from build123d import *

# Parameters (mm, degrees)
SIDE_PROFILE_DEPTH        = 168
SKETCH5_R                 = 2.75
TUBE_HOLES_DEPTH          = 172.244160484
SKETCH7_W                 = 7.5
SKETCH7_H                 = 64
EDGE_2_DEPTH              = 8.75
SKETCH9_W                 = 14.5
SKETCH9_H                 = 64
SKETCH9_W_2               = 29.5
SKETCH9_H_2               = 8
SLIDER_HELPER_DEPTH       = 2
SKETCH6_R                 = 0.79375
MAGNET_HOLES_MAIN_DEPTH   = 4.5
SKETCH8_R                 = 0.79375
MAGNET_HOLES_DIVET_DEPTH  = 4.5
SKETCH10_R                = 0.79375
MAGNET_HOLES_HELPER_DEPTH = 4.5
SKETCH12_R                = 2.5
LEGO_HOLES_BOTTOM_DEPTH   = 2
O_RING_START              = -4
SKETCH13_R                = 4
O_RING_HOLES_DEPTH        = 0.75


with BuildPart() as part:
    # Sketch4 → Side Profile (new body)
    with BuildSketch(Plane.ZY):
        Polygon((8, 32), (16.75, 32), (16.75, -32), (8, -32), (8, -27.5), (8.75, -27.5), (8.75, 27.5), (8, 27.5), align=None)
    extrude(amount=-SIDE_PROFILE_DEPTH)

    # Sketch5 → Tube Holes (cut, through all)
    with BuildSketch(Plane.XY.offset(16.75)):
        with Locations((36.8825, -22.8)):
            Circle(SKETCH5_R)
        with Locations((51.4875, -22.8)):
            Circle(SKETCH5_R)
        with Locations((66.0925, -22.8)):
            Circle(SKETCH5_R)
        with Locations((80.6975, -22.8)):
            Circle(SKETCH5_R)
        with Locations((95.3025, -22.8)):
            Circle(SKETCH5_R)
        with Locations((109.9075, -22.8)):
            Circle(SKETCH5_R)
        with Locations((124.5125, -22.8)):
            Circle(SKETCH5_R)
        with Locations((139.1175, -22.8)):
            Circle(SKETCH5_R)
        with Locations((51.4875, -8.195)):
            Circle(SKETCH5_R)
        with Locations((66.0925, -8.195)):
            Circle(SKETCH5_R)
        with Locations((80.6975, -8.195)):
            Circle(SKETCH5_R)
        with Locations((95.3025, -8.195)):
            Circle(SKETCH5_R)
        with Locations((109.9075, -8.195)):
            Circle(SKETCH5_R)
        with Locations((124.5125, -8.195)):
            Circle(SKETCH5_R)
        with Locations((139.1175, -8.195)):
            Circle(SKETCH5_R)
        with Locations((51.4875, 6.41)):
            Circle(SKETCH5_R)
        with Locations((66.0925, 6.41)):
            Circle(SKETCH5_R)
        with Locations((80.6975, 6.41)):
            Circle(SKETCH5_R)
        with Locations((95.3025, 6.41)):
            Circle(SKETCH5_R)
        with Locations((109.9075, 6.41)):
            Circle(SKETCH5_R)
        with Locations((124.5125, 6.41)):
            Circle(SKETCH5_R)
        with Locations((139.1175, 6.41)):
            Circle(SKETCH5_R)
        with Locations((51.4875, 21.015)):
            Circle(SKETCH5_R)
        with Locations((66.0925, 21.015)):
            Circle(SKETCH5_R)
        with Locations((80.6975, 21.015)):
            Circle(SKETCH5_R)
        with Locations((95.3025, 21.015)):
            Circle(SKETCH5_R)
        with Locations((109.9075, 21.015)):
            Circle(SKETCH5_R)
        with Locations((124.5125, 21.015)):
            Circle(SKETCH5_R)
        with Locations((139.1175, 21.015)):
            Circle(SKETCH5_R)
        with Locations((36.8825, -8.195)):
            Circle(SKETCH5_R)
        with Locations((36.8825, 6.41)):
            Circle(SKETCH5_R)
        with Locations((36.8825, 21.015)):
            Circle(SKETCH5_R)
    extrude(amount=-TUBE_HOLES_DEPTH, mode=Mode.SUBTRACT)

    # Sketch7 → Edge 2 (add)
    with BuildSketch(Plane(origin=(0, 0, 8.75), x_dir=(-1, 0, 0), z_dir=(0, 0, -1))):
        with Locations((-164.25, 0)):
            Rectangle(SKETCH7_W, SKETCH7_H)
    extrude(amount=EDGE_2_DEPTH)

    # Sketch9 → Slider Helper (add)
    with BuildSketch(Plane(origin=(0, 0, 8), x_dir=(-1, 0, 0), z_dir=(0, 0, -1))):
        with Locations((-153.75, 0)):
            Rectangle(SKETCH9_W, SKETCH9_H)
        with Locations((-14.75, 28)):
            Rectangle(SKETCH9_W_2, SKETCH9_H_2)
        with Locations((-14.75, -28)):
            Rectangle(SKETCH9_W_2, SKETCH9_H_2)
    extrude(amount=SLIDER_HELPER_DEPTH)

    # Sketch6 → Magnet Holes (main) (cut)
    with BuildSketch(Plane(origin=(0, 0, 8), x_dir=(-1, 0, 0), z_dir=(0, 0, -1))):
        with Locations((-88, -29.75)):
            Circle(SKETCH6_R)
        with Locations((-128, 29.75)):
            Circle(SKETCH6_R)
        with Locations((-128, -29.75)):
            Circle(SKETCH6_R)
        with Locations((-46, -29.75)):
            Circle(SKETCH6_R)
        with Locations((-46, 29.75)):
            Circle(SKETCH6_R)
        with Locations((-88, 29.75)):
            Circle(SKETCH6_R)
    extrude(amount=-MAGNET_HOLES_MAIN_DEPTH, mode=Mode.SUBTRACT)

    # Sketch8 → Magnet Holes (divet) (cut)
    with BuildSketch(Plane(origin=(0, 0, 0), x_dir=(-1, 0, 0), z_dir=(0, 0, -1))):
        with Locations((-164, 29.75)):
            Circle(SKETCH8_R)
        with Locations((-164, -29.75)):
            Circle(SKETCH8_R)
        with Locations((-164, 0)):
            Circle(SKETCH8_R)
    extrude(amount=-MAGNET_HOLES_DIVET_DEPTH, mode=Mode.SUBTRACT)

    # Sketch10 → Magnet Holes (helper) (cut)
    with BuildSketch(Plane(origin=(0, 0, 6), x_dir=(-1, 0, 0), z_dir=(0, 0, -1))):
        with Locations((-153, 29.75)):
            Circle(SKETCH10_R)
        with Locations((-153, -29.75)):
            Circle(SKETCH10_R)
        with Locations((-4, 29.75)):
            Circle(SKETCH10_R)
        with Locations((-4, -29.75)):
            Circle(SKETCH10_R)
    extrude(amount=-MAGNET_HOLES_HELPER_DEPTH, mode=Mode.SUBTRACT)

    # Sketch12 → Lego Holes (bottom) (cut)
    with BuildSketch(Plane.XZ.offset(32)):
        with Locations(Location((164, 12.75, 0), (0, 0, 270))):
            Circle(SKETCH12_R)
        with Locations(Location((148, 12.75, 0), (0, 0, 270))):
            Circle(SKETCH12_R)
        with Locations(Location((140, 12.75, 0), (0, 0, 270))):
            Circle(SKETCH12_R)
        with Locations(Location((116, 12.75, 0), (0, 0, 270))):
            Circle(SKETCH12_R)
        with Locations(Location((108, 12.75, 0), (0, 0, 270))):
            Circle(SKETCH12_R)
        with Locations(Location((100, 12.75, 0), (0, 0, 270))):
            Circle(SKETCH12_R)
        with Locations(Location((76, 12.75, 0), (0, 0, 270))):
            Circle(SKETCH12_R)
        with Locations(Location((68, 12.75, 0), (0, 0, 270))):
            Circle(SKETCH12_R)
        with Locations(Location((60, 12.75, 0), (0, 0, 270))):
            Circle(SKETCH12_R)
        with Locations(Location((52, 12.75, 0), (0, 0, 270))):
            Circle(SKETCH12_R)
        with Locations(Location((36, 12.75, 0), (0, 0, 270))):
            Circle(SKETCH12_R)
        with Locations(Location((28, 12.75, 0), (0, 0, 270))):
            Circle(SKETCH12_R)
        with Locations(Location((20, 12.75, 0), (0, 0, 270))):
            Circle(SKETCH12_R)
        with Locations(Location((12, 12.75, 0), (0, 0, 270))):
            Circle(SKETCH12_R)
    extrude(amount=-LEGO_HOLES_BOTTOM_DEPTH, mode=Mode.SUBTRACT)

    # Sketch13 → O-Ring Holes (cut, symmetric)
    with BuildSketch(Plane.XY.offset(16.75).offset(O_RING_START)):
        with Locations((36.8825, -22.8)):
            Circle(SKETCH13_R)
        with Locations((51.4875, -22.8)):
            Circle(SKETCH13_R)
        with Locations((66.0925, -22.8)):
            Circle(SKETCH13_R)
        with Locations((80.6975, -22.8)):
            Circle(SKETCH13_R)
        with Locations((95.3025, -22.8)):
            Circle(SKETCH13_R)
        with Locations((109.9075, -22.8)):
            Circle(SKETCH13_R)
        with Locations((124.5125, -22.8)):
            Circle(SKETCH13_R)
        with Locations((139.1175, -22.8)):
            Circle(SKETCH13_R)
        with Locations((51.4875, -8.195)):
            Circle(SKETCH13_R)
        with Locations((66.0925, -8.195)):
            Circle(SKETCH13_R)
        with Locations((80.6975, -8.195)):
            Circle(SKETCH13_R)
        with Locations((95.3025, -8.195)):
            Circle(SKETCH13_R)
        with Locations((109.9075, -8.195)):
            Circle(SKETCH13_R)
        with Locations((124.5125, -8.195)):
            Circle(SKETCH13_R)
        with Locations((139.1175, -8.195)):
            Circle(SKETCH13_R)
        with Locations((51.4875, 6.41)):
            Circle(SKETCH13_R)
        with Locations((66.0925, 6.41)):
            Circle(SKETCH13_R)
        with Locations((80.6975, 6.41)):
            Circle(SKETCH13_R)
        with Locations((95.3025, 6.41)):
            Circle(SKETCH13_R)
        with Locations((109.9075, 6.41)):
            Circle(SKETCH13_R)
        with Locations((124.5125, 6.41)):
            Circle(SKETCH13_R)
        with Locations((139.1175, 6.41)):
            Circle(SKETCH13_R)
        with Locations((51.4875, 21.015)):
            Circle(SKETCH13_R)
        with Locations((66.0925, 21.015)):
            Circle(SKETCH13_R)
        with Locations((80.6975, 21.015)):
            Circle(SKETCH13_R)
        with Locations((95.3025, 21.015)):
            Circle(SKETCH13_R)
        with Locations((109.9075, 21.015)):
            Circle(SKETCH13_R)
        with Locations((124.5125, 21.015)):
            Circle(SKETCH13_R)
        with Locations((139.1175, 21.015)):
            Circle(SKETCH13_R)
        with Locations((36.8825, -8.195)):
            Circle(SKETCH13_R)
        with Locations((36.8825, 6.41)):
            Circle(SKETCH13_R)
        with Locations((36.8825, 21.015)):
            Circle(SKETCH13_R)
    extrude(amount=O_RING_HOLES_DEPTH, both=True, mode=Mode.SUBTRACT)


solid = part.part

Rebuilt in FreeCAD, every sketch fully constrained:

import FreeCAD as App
import Part
import Sketcher

doc = App.newDocument("Part")
params = doc.addObject("Spreadsheet::Sheet", "Params")
for row, (alias, value) in enumerate([
    ("sketch1_width", "55 mm"),
    ("sketch1_width2", "64 mm"),
    ("sketch1_height", "8.75 mm"),
    ("pad1_length", "168 mm"),
    ("sketch2_diameter", "5.5 mm"),
    ("sketch3_height", "64 mm"),
    ("sketch3_width", "7.5 mm"),
    ("pad2_length", "8.75 mm"),
    ("sketch4_height", "64 mm"),
    ("sketch4_height2", "8 mm"),
    ("sketch4_width", "14.5 mm"),
    ("sketch4_width2", "29.5 mm"),
    ("pad3_length", "2 mm"),
    ("pocket2_length", "4.5 mm"),
    ("pocket3_length", "4.5 mm"),
    ("pocket4_length", "4.5 mm"),
    ("sketch8_diameter", "5 mm"),
    ("pocket5_length", "2 mm"),
    ("sketch9_diameter", "8 mm"),
    ("pocket6_length", "1.5 mm"),
], start=1):
    params.set(f"A{row}", alias)
    params.set(f"B{row}", "=" + value)
    params.setAlias(f"B{row}", alias)

body = doc.addObject("PartDesign::Body", "Body")

sketch1 = body.newObject("Sketcher::SketchObject", "Sketch")
sketch1.AttachmentSupport = (doc.getObject("YZ_Plane"), [""])
sketch1.MapMode = "FlatFace"
sketch1.addGeometry([
    Part.LineSegment(App.Vector(32, 16.8, 0), App.Vector(32, 8, 0)),
    Part.LineSegment(App.Vector(32, 8, 0), App.Vector(27.5, 8, 0)),
    Part.LineSegment(App.Vector(27.5, 8, 0), App.Vector(27.5, 8.8, 0)),
    Part.LineSegment(App.Vector(27.5, 8.8, 0), App.Vector(-27.5, 8.8, 0)),
    Part.LineSegment(App.Vector(-27.5, 8.8, 0), App.Vector(-27.5, 8, 0)),
    Part.LineSegment(App.Vector(-27.5, 8, 0), App.Vector(-32, 8, 0)),
    Part.LineSegment(App.Vector(-32, 8, 0), App.Vector(-32, 16.8, 0)),
    Part.LineSegment(App.Vector(-32, 16.8, 0), App.Vector(32, 16.8, 0)),
], False)
sketch1.addConstraint([
    Sketcher.Constraint("Coincident", 0, 2, 1, 1),
    Sketcher.Constraint("Coincident", 1, 2, 2, 1),
    Sketcher.Constraint("Coincident", 2, 2, 3, 1),
    Sketcher.Constraint("Coincident", 3, 2, 4, 1),
    Sketcher.Constraint("Coincident", 4, 2, 5, 1),
    Sketcher.Constraint("Coincident", 5, 2, 6, 1),
    Sketcher.Constraint("Coincident", 6, 2, 7, 1),
    Sketcher.Constraint("Coincident", 7, 2, 0, 1),
    Sketcher.Constraint("Vertical", 0),
    Sketcher.Constraint("Horizontal", 1),
    Sketcher.Constraint("Vertical", 2),
    Sketcher.Constraint("Horizontal", 3),
    Sketcher.Constraint("Vertical", 4),
    Sketcher.Constraint("Horizontal", 5),
    Sketcher.Constraint("Vertical", 6),
    Sketcher.Constraint("Horizontal", 7),
    Sketcher.Constraint("Symmetric", 1, 2, 4, 2, -2),
    Sketcher.Constraint("Equal", 1, 5),
    Sketcher.Constraint("DistanceX", 3, 2, 3, 1, 55.0),
    Sketcher.Constraint("DistanceX", 7, 1, 7, 2, 64.0),
    Sketcher.Constraint("DistanceY", -1, 1, 0, 2, 8.0),
    Sketcher.Constraint("DistanceY", 3, 2, 6, 2, 8.0),
    Sketcher.Constraint("DistanceY", 0, 2, 0, 1, 8.75),
])
sketch1.setExpression("Constraints[18]", "Params.sketch1_width")
sketch1.setExpression("Constraints[19]", "Params.sketch1_width2")
sketch1.setExpression("Constraints[22]", "Params.sketch1_height")
pad1 = body.newObject("PartDesign::Pad", "Pad")
pad1.Profile = sketch1
pad1.setExpression("Length", "Params.pad1_length")

sketch2 = body.newObject("Sketcher::SketchObject", "Sketch001")
sketch2.AttachmentSupport = (doc.getObject("XY_Plane"), [""])
sketch2.MapMode = "FlatFace"
sketch2.AttachmentOffset = App.Placement(App.Vector(0, 0, 16.75), App.Rotation())
sketch2.addGeometry([
    Part.Circle(App.Vector(36.9, -22.8, 0), App.Vector(0, 0, 1), 2.8),
    Part.Circle(App.Vector(51.5, -22.8, 0), App.Vector(0, 0, 1), 2.8),
    Part.Circle(App.Vector(66.1, -22.8, 0), App.Vector(0, 0, 1), 2.8),
    Part.Circle(App.Vector(80.7, -22.8, 0), App.Vector(0, 0, 1), 2.8),
    Part.Circle(App.Vector(95.3, -22.8, 0), App.Vector(0, 0, 1), 2.8),
    Part.Circle(App.Vector(109.9, -22.8, 0), App.Vector(0, 0, 1), 2.8),
    Part.Circle(App.Vector(124.5, -22.8, 0), App.Vector(0, 0, 1), 2.8),
    Part.Circle(App.Vector(139.1, -22.8, 0), App.Vector(0, 0, 1), 2.8),
    Part.Circle(App.Vector(51.5, -8.2, 0), App.Vector(0, 0, 1), 2.8),
    Part.Circle(App.Vector(66.1, -8.2, 0), App.Vector(0, 0, 1), 2.8),
    Part.Circle(App.Vector(80.7, -8.2, 0), App.Vector(0, 0, 1), 2.8),
    Part.Circle(App.Vector(95.3, -8.2, 0), App.Vector(0, 0, 1), 2.8),
    Part.Circle(App.Vector(109.9, -8.2, 0), App.Vector(0, 0, 1), 2.8),
    Part.Circle(App.Vector(124.5, -8.2, 0), App.Vector(0, 0, 1), 2.8),
    Part.Circle(App.Vector(139.1, -8.2, 0), App.Vector(0, 0, 1), 2.8),
    Part.Circle(App.Vector(51.5, 6.4, 0), App.Vector(0, 0, 1), 2.8),
    Part.Circle(App.Vector(66.1, 6.4, 0), App.Vector(0, 0, 1), 2.8),
    Part.Circle(App.Vector(80.7, 6.4, 0), App.Vector(0, 0, 1), 2.8),
    Part.Circle(App.Vector(95.3, 6.4, 0), App.Vector(0, 0, 1), 2.8),
    Part.Circle(App.Vector(109.9, 6.4, 0), App.Vector(0, 0, 1), 2.8),
    Part.Circle(App.Vector(124.5, 6.4, 0), App.Vector(0, 0, 1), 2.8),
    Part.Circle(App.Vector(139.1, 6.4, 0), App.Vector(0, 0, 1), 2.8),
    Part.Circle(App.Vector(51.5, 21, 0), App.Vector(0, 0, 1), 2.8),
    Part.Circle(App.Vector(66.1, 21, 0), App.Vector(0, 0, 1), 2.8),
    Part.Circle(App.Vector(80.7, 21, 0), App.Vector(0, 0, 1), 2.8),
    Part.Circle(App.Vector(95.3, 21, 0), App.Vector(0, 0, 1), 2.8),
    Part.Circle(App.Vector(109.9, 21, 0), App.Vector(0, 0, 1), 2.8),
    Part.Circle(App.Vector(124.5, 21, 0), App.Vector(0, 0, 1), 2.8),
    Part.Circle(App.Vector(139.1, 21, 0), App.Vector(0, 0, 1), 2.8),
    Part.Circle(App.Vector(36.9, -8.2, 0), App.Vector(0, 0, 1), 2.8),
    Part.Circle(App.Vector(36.9, 6.4, 0), App.Vector(0, 0, 1), 2.8),
    Part.Circle(App.Vector(36.9, 21, 0), App.Vector(0, 0, 1), 2.8),
], False)
sketch2.addConstraint([
    Sketcher.Constraint("Equal", 0, 1),
    Sketcher.Constraint("Equal", 1, 2),
    Sketcher.Constraint("Equal", 2, 3),
    Sketcher.Constraint("Equal", 3, 4),
    Sketcher.Constraint("Equal", 4, 5),
    Sketcher.Constraint("Equal", 5, 6),
    Sketcher.Constraint("Equal", 6, 7),
    Sketcher.Constraint("Equal", 7, 8),
    Sketcher.Constraint("Equal", 8, 9),
    Sketcher.Constraint("Equal", 9, 10),
    Sketcher.Constraint("Equal", 10, 11),
    Sketcher.Constraint("Equal", 11, 12),
    Sketcher.Constraint("Equal", 12, 13),
    Sketcher.Constraint("Equal", 13, 14),
    Sketcher.Constraint("Equal", 14, 15),
    Sketcher.Constraint("Equal", 15, 16),
    Sketcher.Constraint("Equal", 16, 17),
    Sketcher.Constraint("Equal", 17, 18),
    Sketcher.Constraint("Equal", 18, 19),
    Sketcher.Constraint("Equal", 19, 20),
    Sketcher.Constraint("Equal", 20, 21),
    Sketcher.Constraint("Equal", 21, 22),
    Sketcher.Constraint("Equal", 22, 23),
    Sketcher.Constraint("Equal", 23, 24),
    Sketcher.Constraint("Equal", 24, 25),
    Sketcher.Constraint("Equal", 25, 26),
    Sketcher.Constraint("Equal", 26, 27),
    Sketcher.Constraint("Equal", 27, 28),
    Sketcher.Constraint("Equal", 28, 29),
    Sketcher.Constraint("Equal", 29, 30),
    Sketcher.Constraint("Equal", 30, 31),
    Sketcher.Constraint("Horizontal", 0, 3, 1, 3),
    Sketcher.Constraint("Horizontal", 1, 3, 2, 3),
    Sketcher.Constraint("Horizontal", 2, 3, 3, 3),
    Sketcher.Constraint("Horizontal", 3, 3, 4, 3),
    Sketcher.Constraint("Horizontal", 4, 3, 5, 3),
    Sketcher.Constraint("Horizontal", 5, 3, 6, 3),
    Sketcher.Constraint("Horizontal", 6, 3, 7, 3),
    Sketcher.Constraint("Horizontal", 8, 3, 9, 3),
    Sketcher.Constraint("Horizontal", 9, 3, 10, 3),
    Sketcher.Constraint("Horizontal", 10, 3, 11, 3),
    Sketcher.Constraint("Horizontal", 11, 3, 12, 3),
    Sketcher.Constraint("Horizontal", 12, 3, 13, 3),
    Sketcher.Constraint("Horizontal", 13, 3, 14, 3),
    Sketcher.Constraint("Horizontal", 15, 3, 16, 3),
    Sketcher.Constraint("Horizontal", 16, 3, 17, 3),
    Sketcher.Constraint("Horizontal", 17, 3, 18, 3),
    Sketcher.Constraint("Horizontal", 18, 3, 19, 3),
    Sketcher.Constraint("Horizontal", 19, 3, 20, 3),
    Sketcher.Constraint("Horizontal", 20, 3, 21, 3),
    Sketcher.Constraint("Horizontal", 22, 3, 23, 3),
    Sketcher.Constraint("Horizontal", 23, 3, 24, 3),
    Sketcher.Constraint("Horizontal", 24, 3, 25, 3),
    Sketcher.Constraint("Horizontal", 25, 3, 26, 3),
    Sketcher.Constraint("Horizontal", 26, 3, 27, 3),
    Sketcher.Constraint("Horizontal", 27, 3, 28, 3),
    Sketcher.Constraint("Horizontal", 14, 3, 29, 3),
    Sketcher.Constraint("Horizontal", 21, 3, 30, 3),
    Sketcher.Constraint("Horizontal", 28, 3, 31, 3),
    Sketcher.Constraint("Vertical", 1, 3, 8, 3),
    Sketcher.Constraint("Vertical", 2, 3, 9, 3),
    Sketcher.Constraint("Vertical", 3, 3, 10, 3),
    Sketcher.Constraint("Vertical", 4, 3, 11, 3),
    Sketcher.Constraint("Vertical", 5, 3, 12, 3),
    Sketcher.Constraint("Vertical", 6, 3, 13, 3),
    Sketcher.Constraint("Vertical", 7, 3, 14, 3),
    Sketcher.Constraint("Vertical", 8, 3, 15, 3),
    Sketcher.Constraint("Vertical", 9, 3, 16, 3),
    Sketcher.Constraint("Vertical", 10, 3, 17, 3),
    Sketcher.Constraint("Vertical", 11, 3, 18, 3),
    Sketcher.Constraint("Vertical", 12, 3, 19, 3),
    Sketcher.Constraint("Vertical", 13, 3, 20, 3),
    Sketcher.Constraint("Vertical", 14, 3, 21, 3),
    Sketcher.Constraint("Vertical", 15, 3, 22, 3),
    Sketcher.Constraint("Vertical", 16, 3, 23, 3),
    Sketcher.Constraint("Vertical", 17, 3, 24, 3),
    Sketcher.Constraint("Vertical", 18, 3, 25, 3),
    Sketcher.Constraint("Vertical", 19, 3, 26, 3),
    Sketcher.Constraint("Vertical", 20, 3, 27, 3),
    Sketcher.Constraint("Vertical", 21, 3, 28, 3),
    Sketcher.Constraint("Vertical", 0, 3, 29, 3),
    Sketcher.Constraint("Vertical", 29, 3, 30, 3),
    Sketcher.Constraint("Vertical", 30, 3, 31, 3),
    Sketcher.Constraint("Diameter", 0, 5.5),
    Sketcher.Constraint("DistanceY", 0, 3, -1, 1, 22.8),
    Sketcher.Constraint("DistanceY", -1, 1, 15, 3, 6.41),
    Sketcher.Constraint("DistanceX", 0, 3, 2, 3, 29.21),
    Sketcher.Constraint("DistanceX", 1, 3, 3, 3, 29.21),
    Sketcher.Constraint("DistanceX", 2, 3, 4, 3, 29.21),
    Sketcher.Constraint("DistanceX", 3, 3, 5, 3, 29.21),
    Sketcher.Constraint("DistanceX", 4, 3, 6, 3, 29.21),
    Sketcher.Constraint("DistanceX", 5, 3, 7, 3, 29.21),
    Sketcher.Constraint("DistanceY", 8, 3, 22, 3, 29.21),
    Sketcher.Constraint("DistanceY", 8, 3, -1, 1, 8.195),
    Sketcher.Constraint("DistanceX", 0, 3, 1, 3, 14.605),
    Sketcher.Constraint("DistanceX", -1, 1, 0, 3, 36.8825),
])
sketch2.setExpression("Constraints[83]", "Params.sketch2_diameter")
pocket1 = body.newObject("PartDesign::Pocket", "Pocket")
pocket1.Profile = sketch2
pocket1.Type = "ThroughAll"

sketch3 = body.newObject("Sketcher::SketchObject", "Sketch002")
sketch3.AttachmentSupport = (doc.getObject("XY_Plane"), [""])
sketch3.MapMode = "FlatFace"
sketch3.AttachmentOffset = App.Placement(App.Vector(0, 0, 8.75), App.Rotation())
sketch3.addGeometry([
    Part.LineSegment(App.Vector(168, 32, 0), App.Vector(168, -32, 0)),
    Part.LineSegment(App.Vector(168, -32, 0), App.Vector(160, -32, 0)),
    Part.LineSegment(App.Vector(160, -32, 0), App.Vector(160, 32, 0)),
    Part.LineSegment(App.Vector(160, 32, 0), App.Vector(168, 32, 0)),
], False)
sketch3.addConstraint([
    Sketcher.Constraint("Coincident", 0, 2, 1, 1),
    Sketcher.Constraint("Coincident", 1, 2, 2, 1),
    Sketcher.Constraint("Coincident", 2, 2, 3, 1),
    Sketcher.Constraint("Coincident", 3, 2, 0, 1),
    Sketcher.Constraint("Vertical", 0),
    Sketcher.Constraint("Horizontal", 1),
    Sketcher.Constraint("Vertical", 2),
    Sketcher.Constraint("Horizontal", 3),
    Sketcher.Constraint("DistanceY", 0, 2, 0, 1, 64.0),
    Sketcher.Constraint("DistanceX", 1, 2, 1, 1, 7.5),
    Sketcher.Constraint("DistanceX", -1, 1, 0, 2, 168.0),
    Sketcher.Constraint("DistanceY", 0, 2, -1, 1, 32.0),
])
sketch3.setExpression("Constraints[8]", "Params.sketch3_height")
sketch3.setExpression("Constraints[9]", "Params.sketch3_width")
pad2 = body.newObject("PartDesign::Pad", "Pad001")
pad2.Profile = sketch3
pad2.setExpression("Length", "Params.pad2_length")
pad2.Reversed = True

sketch4 = body.newObject("Sketcher::SketchObject", "Sketch003")
sketch4.AttachmentSupport = (doc.getObject("XY_Plane"), [""])
sketch4.MapMode = "FlatFace"
sketch4.AttachmentOffset = App.Placement(App.Vector(0, 0, 8), App.Rotation())
sketch4.addGeometry([
    Part.LineSegment(App.Vector(161, 32, 0), App.Vector(161, -32, 0)),
    Part.LineSegment(App.Vector(161, -32, 0), App.Vector(146, -32, 0)),
    Part.LineSegment(App.Vector(146, -32, 0), App.Vector(146, 32, 0)),
    Part.LineSegment(App.Vector(146, 32, 0), App.Vector(161, 32, 0)),
    Part.LineSegment(App.Vector(30, 32, 0), App.Vector(30, 24, 0)),
    Part.LineSegment(App.Vector(30, 24, 0), App.Vector(0, 24, 0)),
    Part.LineSegment(App.Vector(0, 24, 0), App.Vector(0, 32, 0)),
    Part.LineSegment(App.Vector(0, 32, 0), App.Vector(30, 32, 0)),
    Part.LineSegment(App.Vector(30, -24, 0), App.Vector(30, -32, 0)),
    Part.LineSegment(App.Vector(30, -32, 0), App.Vector(0, -32, 0)),
    Part.LineSegment(App.Vector(0, -32, 0), App.Vector(0, -24, 0)),
    Part.LineSegment(App.Vector(0, -24, 0), App.Vector(30, -24, 0)),
], False)
sketch4.addConstraint([
    Sketcher.Constraint("Coincident", 0, 2, 1, 1),
    Sketcher.Constraint("Coincident", 1, 2, 2, 1),
    Sketcher.Constraint("Coincident", 2, 2, 3, 1),
    Sketcher.Constraint("Coincident", 3, 2, 0, 1),
    Sketcher.Constraint("Coincident", 4, 2, 5, 1),
    Sketcher.Constraint("Coincident", 5, 2, 6, 1),
    Sketcher.Constraint("Coincident", 6, 2, 7, 1),
    Sketcher.Constraint("Coincident", 7, 2, 4, 1),
    Sketcher.Constraint("Coincident", 8, 2, 9, 1),
    Sketcher.Constraint("Coincident", 9, 2, 10, 1),
    Sketcher.Constraint("Coincident", 10, 2, 11, 1),
    Sketcher.Constraint("Coincident", 11, 2, 8, 1),
    Sketcher.Constraint("Vertical", 0),
    Sketcher.Constraint("Horizontal", 1),
    Sketcher.Constraint("Vertical", 2),
    Sketcher.Constraint("Horizontal", 3),
    Sketcher.Constraint("Vertical", 4),
    Sketcher.Constraint("Horizontal", 5),
    Sketcher.Constraint("Vertical", 6),
    Sketcher.Constraint("Horizontal", 7),
    Sketcher.Constraint("Vertical", 8),
    Sketcher.Constraint("Horizontal", 9),
    Sketcher.Constraint("Vertical", 10),
    Sketcher.Constraint("Horizontal", 11),
    Sketcher.Constraint("Symmetric", 6, 2, 9, 2, -1, 1),
    Sketcher.Constraint("Symmetric", 5, 2, 10, 2, -1),
    Sketcher.Constraint("Horizontal", 3, 2, 6, 2),
    Sketcher.Constraint("Horizontal", 1, 2, 8, 2),
    Sketcher.Constraint("Vertical", 7, 2, 8, 2),
    Sketcher.Constraint("DistanceY", 0, 2, 0, 1, 64.0),
    Sketcher.Constraint("DistanceY", 4, 2, 4, 1, 8.0),
    Sketcher.Constraint("DistanceX", 1, 2, 1, 1, 14.5),
    Sketcher.Constraint("DistanceX", 5, 2, 5, 1, 29.5),
    Sketcher.Constraint("DistanceX", -1, 1, 0, 2, 161.0),
])
sketch4.setExpression("Constraints[29]", "Params.sketch4_height")
sketch4.setExpression("Constraints[30]", "Params.sketch4_height2")
sketch4.setExpression("Constraints[31]", "Params.sketch4_width")
sketch4.setExpression("Constraints[32]", "Params.sketch4_width2")
pad3 = body.newObject("PartDesign::Pad", "Pad002")
pad3.Profile = sketch4
pad3.setExpression("Length", "Params.pad3_length")
pad3.Reversed = True

sketch5 = body.newObject("Sketcher::SketchObject", "Sketch004")
sketch5.AttachmentSupport = (doc.getObject("XY_Plane"), [""])
sketch5.MapMode = "FlatFace"
sketch5.AttachmentOffset = App.Placement(App.Vector(0, 0, 8), App.Rotation())
sketch5.addGeometry([
    Part.Circle(App.Vector(88, -29.8, 0), App.Vector(0, 0, 1), 0.8),
    Part.Circle(App.Vector(128, 29.8, 0), App.Vector(0, 0, 1), 0.8),
    Part.Circle(App.Vector(128, -29.8, 0), App.Vector(0, 0, 1), 0.8),
    Part.Circle(App.Vector(46, -29.8, 0), App.Vector(0, 0, 1), 0.8),
    Part.Circle(App.Vector(46, 29.8, 0), App.Vector(0, 0, 1), 0.8),
    Part.Circle(App.Vector(88, 29.8, 0), App.Vector(0, 0, 1), 0.8),
], False)
sketch5.addConstraint([
    Sketcher.Constraint("Equal", 0, 1),
    Sketcher.Constraint("Equal", 1, 2),
    Sketcher.Constraint("Equal", 2, 3),
    Sketcher.Constraint("Equal", 3, 4),
    Sketcher.Constraint("Equal", 4, 5),
    Sketcher.Constraint("Symmetric", 1, 3, 2, 3, -1),
    Sketcher.Constraint("Symmetric", 3, 3, 4, 3, -1),
    Sketcher.Constraint("Symmetric", 0, 3, 5, 3, -1),
    Sketcher.Constraint("Horizontal", 0, 3, 2, 3),
    Sketcher.Constraint("Horizontal", 2, 3, 3, 3),
    Sketcher.Constraint("DistanceX", -1, 1, 0, 3, 88.0),
    Sketcher.Constraint("DistanceX", -1, 1, 1, 3, 128.0),
    Sketcher.Constraint("DistanceX", -1, 1, 3, 3, 46.0),
    Sketcher.Constraint("Diameter", 0, 1.5875),
    Sketcher.Constraint("DistanceY", 0, 3, 1, 3, 59.5),
])
pocket2 = body.newObject("PartDesign::Pocket", "Pocket001")
pocket2.Profile = sketch5
pocket2.setExpression("Length", "Params.pocket2_length")
pocket2.Reversed = True

sketch6 = body.newObject("Sketcher::SketchObject", "Sketch005")
sketch6.AttachmentSupport = (doc.getObject("XY_Plane"), [""])
sketch6.MapMode = "FlatFace"
sketch6.addGeometry([
    Part.Circle(App.Vector(164, 29.8, 0), App.Vector(0, 0, 1), 0.8),
    Part.Circle(App.Vector(164, -29.8, 0), App.Vector(0, 0, 1), 0.8),
    Part.Circle(App.Vector(164, 0, 0), App.Vector(0, 0, 1), 0.8),
], False)
sketch6.addConstraint([
    Sketcher.Constraint("Equal", 0, 1),
    Sketcher.Constraint("Equal", 1, 2),
    Sketcher.Constraint("Symmetric", 0, 3, 1, 3, -1),
    Sketcher.Constraint("PointOnObject", 2, 3, -1),
    Sketcher.Constraint("Vertical", 1, 3, 2, 3),
    Sketcher.Constraint("DistanceX", -1, 1, 0, 3, 164.0),
    Sketcher.Constraint("Diameter", 0, 1.5875),
    Sketcher.Constraint("DistanceY", 1, 3, 0, 3, 59.5),
])
pocket3 = body.newObject("PartDesign::Pocket", "Pocket002")
pocket3.Profile = sketch6
pocket3.setExpression("Length", "Params.pocket3_length")
pocket3.Reversed = True

sketch7 = body.newObject("Sketcher::SketchObject", "Sketch006")
sketch7.AttachmentSupport = (doc.getObject("XY_Plane"), [""])
sketch7.MapMode = "FlatFace"
sketch7.AttachmentOffset = App.Placement(App.Vector(0, 0, 6), App.Rotation())
sketch7.addGeometry([
    Part.Circle(App.Vector(153, 29.8, 0), App.Vector(0, 0, 1), 0.8),
    Part.Circle(App.Vector(153, -29.8, 0), App.Vector(0, 0, 1), 0.8),
    Part.Circle(App.Vector(4, 29.8, 0), App.Vector(0, 0, 1), 0.8),
    Part.Circle(App.Vector(4, -29.8, 0), App.Vector(0, 0, 1), 0.8),
], False)
sketch7.addConstraint([
    Sketcher.Constraint("Equal", 0, 1),
    Sketcher.Constraint("Equal", 1, 2),
    Sketcher.Constraint("Equal", 2, 3),
    Sketcher.Constraint("Symmetric", 0, 3, 1, 3, -1),
    Sketcher.Constraint("Symmetric", 2, 3, 3, 3, -1),
    Sketcher.Constraint("Horizontal", 0, 3, 2, 3),
    Sketcher.Constraint("DistanceX", -1, 1, 0, 3, 153.0),
    Sketcher.Constraint("DistanceX", -1, 1, 2, 3, 4.0),
    Sketcher.Constraint("Diameter", 0, 1.5875),
    Sketcher.Constraint("DistanceY", 1, 3, 0, 3, 59.5),
])
pocket4 = body.newObject("PartDesign::Pocket", "Pocket003")
pocket4.Profile = sketch7
pocket4.setExpression("Length", "Params.pocket4_length")
pocket4.Reversed = True

sketch8 = body.newObject("Sketcher::SketchObject", "Sketch007")
sketch8.AttachmentSupport = (doc.getObject("XZ_Plane"), [""])
sketch8.MapMode = "FlatFace"
sketch8.AttachmentOffset = App.Placement(App.Vector(0, 0, 32), App.Rotation())
sketch8.addGeometry([
    Part.Circle(App.Vector(164, 12.8, 0), App.Vector(0, 0, 1), 2.5),
    Part.Circle(App.Vector(148, 12.8, 0), App.Vector(0, 0, 1), 2.5),
    Part.Circle(App.Vector(140, 12.8, 0), App.Vector(0, 0, 1), 2.5),
    Part.Circle(App.Vector(116, 12.8, 0), App.Vector(0, 0, 1), 2.5),
    Part.Circle(App.Vector(108, 12.8, 0), App.Vector(0, 0, 1), 2.5),
    Part.Circle(App.Vector(100, 12.8, 0), App.Vector(0, 0, 1), 2.5),
    Part.Circle(App.Vector(76, 12.8, 0), App.Vector(0, 0, 1), 2.5),
    Part.Circle(App.Vector(68, 12.8, 0), App.Vector(0, 0, 1), 2.5),
    Part.Circle(App.Vector(60, 12.8, 0), App.Vector(0, 0, 1), 2.5),
    Part.Circle(App.Vector(52, 12.8, 0), App.Vector(0, 0, 1), 2.5),
    Part.Circle(App.Vector(36, 12.8, 0), App.Vector(0, 0, 1), 2.5),
    Part.Circle(App.Vector(28, 12.8, 0), App.Vector(0, 0, 1), 2.5),
    Part.Circle(App.Vector(20, 12.8, 0), App.Vector(0, 0, 1), 2.5),
    Part.Circle(App.Vector(12, 12.8, 0), App.Vector(0, 0, 1), 2.5),
], False)
sketch8.addConstraint([
    Sketcher.Constraint("Equal", 0, 1),
    Sketcher.Constraint("Equal", 1, 2),
    Sketcher.Constraint("Equal", 2, 3),
    Sketcher.Constraint("Equal", 3, 4),
    Sketcher.Constraint("Equal", 4, 5),
    Sketcher.Constraint("Equal", 5, 6),
    Sketcher.Constraint("Equal", 6, 7),
    Sketcher.Constraint("Equal", 7, 8),
    Sketcher.Constraint("Equal", 8, 9),
    Sketcher.Constraint("Equal", 9, 10),
    Sketcher.Constraint("Equal", 10, 11),
    Sketcher.Constraint("Equal", 11, 12),
    Sketcher.Constraint("Equal", 12, 13),
    Sketcher.Constraint("Horizontal", 0, 3, 1, 3),
    Sketcher.Constraint("Horizontal", 1, 3, 2, 3),
    Sketcher.Constraint("Horizontal", 2, 3, 3, 3),
    Sketcher.Constraint("Horizontal", 3, 3, 4, 3),
    Sketcher.Constraint("Horizontal", 4, 3, 5, 3),
    Sketcher.Constraint("Horizontal", 5, 3, 6, 3),
    Sketcher.Constraint("Horizontal", 6, 3, 7, 3),
    Sketcher.Constraint("Horizontal", 7, 3, 8, 3),
    Sketcher.Constraint("Horizontal", 8, 3, 9, 3),
    Sketcher.Constraint("Horizontal", 9, 3, 10, 3),
    Sketcher.Constraint("Horizontal", 10, 3, 11, 3),
    Sketcher.Constraint("Horizontal", 11, 3, 12, 3),
    Sketcher.Constraint("Horizontal", 12, 3, 13, 3),
    Sketcher.Constraint("Diameter", 0, 5.0),
    Sketcher.Constraint("DistanceX", -1, 1, 0, 3, 164.0),
    Sketcher.Constraint("DistanceX", -1, 1, 1, 3, 148.0),
    Sketcher.Constraint("DistanceX", -1, 1, 2, 3, 140.0),
    Sketcher.Constraint("DistanceX", -1, 1, 3, 3, 116.0),
    Sketcher.Constraint("DistanceX", -1, 1, 4, 3, 108.0),
    Sketcher.Constraint("DistanceX", -1, 1, 5, 3, 100.0),
    Sketcher.Constraint("DistanceX", -1, 1, 6, 3, 76.0),
    Sketcher.Constraint("DistanceX", -1, 1, 7, 3, 68.0),
    Sketcher.Constraint("DistanceX", -1, 1, 8, 3, 60.0),
    Sketcher.Constraint("DistanceX", -1, 1, 9, 3, 52.0),
    Sketcher.Constraint("DistanceX", -1, 1, 10, 3, 36.0),
    Sketcher.Constraint("DistanceX", -1, 1, 11, 3, 28.0),
    Sketcher.Constraint("DistanceX", -1, 1, 12, 3, 20.0),
    Sketcher.Constraint("DistanceX", -1, 1, 13, 3, 12.0),
    Sketcher.Constraint("DistanceY", -1, 1, 0, 3, 12.75),
])
sketch8.setExpression("Constraints[26]", "Params.sketch8_diameter")
pocket5 = body.newObject("PartDesign::Pocket", "Pocket004")
pocket5.Profile = sketch8
pocket5.setExpression("Length", "Params.pocket5_length")

sketch9 = body.newObject("Sketcher::SketchObject", "Sketch008")
sketch9.AttachmentSupport = (doc.getObject("XY_Plane"), [""])
sketch9.MapMode = "FlatFace"
sketch9.AttachmentOffset = App.Placement(App.Vector(0, 0, 12.75), App.Rotation())
sketch9.addGeometry([
    Part.Circle(App.Vector(36.9, -22.8, 0), App.Vector(0, 0, 1), 4),
    Part.Circle(App.Vector(51.5, -22.8, 0), App.Vector(0, 0, 1), 4),
    Part.Circle(App.Vector(66.1, -22.8, 0), App.Vector(0, 0, 1), 4),
    Part.Circle(App.Vector(80.7, -22.8, 0), App.Vector(0, 0, 1), 4),
    Part.Circle(App.Vector(95.3, -22.8, 0), App.Vector(0, 0, 1), 4),
    Part.Circle(App.Vector(109.9, -22.8, 0), App.Vector(0, 0, 1), 4),
    Part.Circle(App.Vector(124.5, -22.8, 0), App.Vector(0, 0, 1), 4),
    Part.Circle(App.Vector(139.1, -22.8, 0), App.Vector(0, 0, 1), 4),
    Part.Circle(App.Vector(51.5, -8.2, 0), App.Vector(0, 0, 1), 4),
    Part.Circle(App.Vector(66.1, -8.2, 0), App.Vector(0, 0, 1), 4),
    Part.Circle(App.Vector(80.7, -8.2, 0), App.Vector(0, 0, 1), 4),
    Part.Circle(App.Vector(95.3, -8.2, 0), App.Vector(0, 0, 1), 4),
    Part.Circle(App.Vector(109.9, -8.2, 0), App.Vector(0, 0, 1), 4),
    Part.Circle(App.Vector(124.5, -8.2, 0), App.Vector(0, 0, 1), 4),
    Part.Circle(App.Vector(139.1, -8.2, 0), App.Vector(0, 0, 1), 4),
    Part.Circle(App.Vector(51.5, 6.4, 0), App.Vector(0, 0, 1), 4),
    Part.Circle(App.Vector(66.1, 6.4, 0), App.Vector(0, 0, 1), 4),
    Part.Circle(App.Vector(80.7, 6.4, 0), App.Vector(0, 0, 1), 4),
    Part.Circle(App.Vector(95.3, 6.4, 0), App.Vector(0, 0, 1), 4),
    Part.Circle(App.Vector(109.9, 6.4, 0), App.Vector(0, 0, 1), 4),
    Part.Circle(App.Vector(124.5, 6.4, 0), App.Vector(0, 0, 1), 4),
    Part.Circle(App.Vector(139.1, 6.4, 0), App.Vector(0, 0, 1), 4),
    Part.Circle(App.Vector(51.5, 21, 0), App.Vector(0, 0, 1), 4),
    Part.Circle(App.Vector(66.1, 21, 0), App.Vector(0, 0, 1), 4),
    Part.Circle(App.Vector(80.7, 21, 0), App.Vector(0, 0, 1), 4),
    Part.Circle(App.Vector(95.3, 21, 0), App.Vector(0, 0, 1), 4),
    Part.Circle(App.Vector(109.9, 21, 0), App.Vector(0, 0, 1), 4),
    Part.Circle(App.Vector(124.5, 21, 0), App.Vector(0, 0, 1), 4),
    Part.Circle(App.Vector(139.1, 21, 0), App.Vector(0, 0, 1), 4),
    Part.Circle(App.Vector(36.9, -8.2, 0), App.Vector(0, 0, 1), 4),
    Part.Circle(App.Vector(36.9, 6.4, 0), App.Vector(0, 0, 1), 4),
    Part.Circle(App.Vector(36.9, 21, 0), App.Vector(0, 0, 1), 4),
], False)
sketch9.addConstraint([
    Sketcher.Constraint("Equal", 0, 1),
    Sketcher.Constraint("Equal", 1, 2),
    Sketcher.Constraint("Equal", 2, 3),
    Sketcher.Constraint("Equal", 3, 4),
    Sketcher.Constraint("Equal", 4, 5),
    Sketcher.Constraint("Equal", 5, 6),
    Sketcher.Constraint("Equal", 6, 7),
    Sketcher.Constraint("Equal", 7, 8),
    Sketcher.Constraint("Equal", 8, 9),
    Sketcher.Constraint("Equal", 9, 10),
    Sketcher.Constraint("Equal", 10, 11),
    Sketcher.Constraint("Equal", 11, 12),
    Sketcher.Constraint("Equal", 12, 13),
    Sketcher.Constraint("Equal", 13, 14),
    Sketcher.Constraint("Equal", 14, 15),
    Sketcher.Constraint("Equal", 15, 16),
    Sketcher.Constraint("Equal", 16, 17),
    Sketcher.Constraint("Equal", 17, 18),
    Sketcher.Constraint("Equal", 18, 19),
    Sketcher.Constraint("Equal", 19, 20),
    Sketcher.Constraint("Equal", 20, 21),
    Sketcher.Constraint("Equal", 21, 22),
    Sketcher.Constraint("Equal", 22, 23),
    Sketcher.Constraint("Equal", 23, 24),
    Sketcher.Constraint("Equal", 24, 25),
    Sketcher.Constraint("Equal", 25, 26),
    Sketcher.Constraint("Equal", 26, 27),
    Sketcher.Constraint("Equal", 27, 28),
    Sketcher.Constraint("Equal", 28, 29),
    Sketcher.Constraint("Equal", 29, 30),
    Sketcher.Constraint("Equal", 30, 31),
    Sketcher.Constraint("Horizontal", 0, 3, 1, 3),
    Sketcher.Constraint("Horizontal", 1, 3, 2, 3),
    Sketcher.Constraint("Horizontal", 2, 3, 3, 3),
    Sketcher.Constraint("Horizontal", 3, 3, 4, 3),
    Sketcher.Constraint("Horizontal", 4, 3, 5, 3),
    Sketcher.Constraint("Horizontal", 5, 3, 6, 3),
    Sketcher.Constraint("Horizontal", 6, 3, 7, 3),
    Sketcher.Constraint("Horizontal", 8, 3, 9, 3),
    Sketcher.Constraint("Horizontal", 9, 3, 10, 3),
    Sketcher.Constraint("Horizontal", 10, 3, 11, 3),
    Sketcher.Constraint("Horizontal", 11, 3, 12, 3),
    Sketcher.Constraint("Horizontal", 12, 3, 13, 3),
    Sketcher.Constraint("Horizontal", 13, 3, 14, 3),
    Sketcher.Constraint("Horizontal", 15, 3, 16, 3),
    Sketcher.Constraint("Horizontal", 16, 3, 17, 3),
    Sketcher.Constraint("Horizontal", 17, 3, 18, 3),
    Sketcher.Constraint("Horizontal", 18, 3, 19, 3),
    Sketcher.Constraint("Horizontal", 19, 3, 20, 3),
    Sketcher.Constraint("Horizontal", 20, 3, 21, 3),
    Sketcher.Constraint("Horizontal", 22, 3, 23, 3),
    Sketcher.Constraint("Horizontal", 23, 3, 24, 3),
    Sketcher.Constraint("Horizontal", 24, 3, 25, 3),
    Sketcher.Constraint("Horizontal", 25, 3, 26, 3),
    Sketcher.Constraint("Horizontal", 26, 3, 27, 3),
    Sketcher.Constraint("Horizontal", 27, 3, 28, 3),
    Sketcher.Constraint("Horizontal", 14, 3, 29, 3),
    Sketcher.Constraint("Horizontal", 21, 3, 30, 3),
    Sketcher.Constraint("Horizontal", 28, 3, 31, 3),
    Sketcher.Constraint("Vertical", 1, 3, 8, 3),
    Sketcher.Constraint("Vertical", 2, 3, 9, 3),
    Sketcher.Constraint("Vertical", 3, 3, 10, 3),
    Sketcher.Constraint("Vertical", 4, 3, 11, 3),
    Sketcher.Constraint("Vertical", 5, 3, 12, 3),
    Sketcher.Constraint("Vertical", 6, 3, 13, 3),
    Sketcher.Constraint("Vertical", 7, 3, 14, 3),
    Sketcher.Constraint("Vertical", 8, 3, 15, 3),
    Sketcher.Constraint("Vertical", 9, 3, 16, 3),
    Sketcher.Constraint("Vertical", 10, 3, 17, 3),
    Sketcher.Constraint("Vertical", 11, 3, 18, 3),
    Sketcher.Constraint("Vertical", 12, 3, 19, 3),
    Sketcher.Constraint("Vertical", 13, 3, 20, 3),
    Sketcher.Constraint("Vertical", 14, 3, 21, 3),
    Sketcher.Constraint("Vertical", 15, 3, 22, 3),
    Sketcher.Constraint("Vertical", 16, 3, 23, 3),
    Sketcher.Constraint("Vertical", 17, 3, 24, 3),
    Sketcher.Constraint("Vertical", 18, 3, 25, 3),
    Sketcher.Constraint("Vertical", 19, 3, 26, 3),
    Sketcher.Constraint("Vertical", 20, 3, 27, 3),
    Sketcher.Constraint("Vertical", 21, 3, 28, 3),
    Sketcher.Constraint("Vertical", 0, 3, 29, 3),
    Sketcher.Constraint("Vertical", 29, 3, 30, 3),
    Sketcher.Constraint("Vertical", 30, 3, 31, 3),
    Sketcher.Constraint("Diameter", 0, 8.0),
    Sketcher.Constraint("DistanceY", 0, 3, -1, 1, 22.8),
    Sketcher.Constraint("DistanceY", -1, 1, 15, 3, 6.41),
    Sketcher.Constraint("DistanceX", 0, 3, 2, 3, 29.21),
    Sketcher.Constraint("DistanceX", 1, 3, 3, 3, 29.21),
    Sketcher.Constraint("DistanceX", 2, 3, 4, 3, 29.21),
    Sketcher.Constraint("DistanceX", 3, 3, 5, 3, 29.21),
    Sketcher.Constraint("DistanceX", 4, 3, 6, 3, 29.21),
    Sketcher.Constraint("DistanceX", 5, 3, 7, 3, 29.21),
    Sketcher.Constraint("DistanceY", 8, 3, 22, 3, 29.21),
    Sketcher.Constraint("DistanceY", 8, 3, -1, 1, 8.195),
    Sketcher.Constraint("DistanceX", 0, 3, 1, 3, 14.605),
    Sketcher.Constraint("DistanceX", -1, 1, 0, 3, 36.8825),
])
sketch9.setExpression("Constraints[83]", "Params.sketch9_diameter")
pocket6 = body.newObject("PartDesign::Pocket", "Pocket005")
pocket6.Profile = sketch9
pocket6.setExpression("Length", "Params.pocket6_length")
pocket6.Midplane = True

doc.recompute()
